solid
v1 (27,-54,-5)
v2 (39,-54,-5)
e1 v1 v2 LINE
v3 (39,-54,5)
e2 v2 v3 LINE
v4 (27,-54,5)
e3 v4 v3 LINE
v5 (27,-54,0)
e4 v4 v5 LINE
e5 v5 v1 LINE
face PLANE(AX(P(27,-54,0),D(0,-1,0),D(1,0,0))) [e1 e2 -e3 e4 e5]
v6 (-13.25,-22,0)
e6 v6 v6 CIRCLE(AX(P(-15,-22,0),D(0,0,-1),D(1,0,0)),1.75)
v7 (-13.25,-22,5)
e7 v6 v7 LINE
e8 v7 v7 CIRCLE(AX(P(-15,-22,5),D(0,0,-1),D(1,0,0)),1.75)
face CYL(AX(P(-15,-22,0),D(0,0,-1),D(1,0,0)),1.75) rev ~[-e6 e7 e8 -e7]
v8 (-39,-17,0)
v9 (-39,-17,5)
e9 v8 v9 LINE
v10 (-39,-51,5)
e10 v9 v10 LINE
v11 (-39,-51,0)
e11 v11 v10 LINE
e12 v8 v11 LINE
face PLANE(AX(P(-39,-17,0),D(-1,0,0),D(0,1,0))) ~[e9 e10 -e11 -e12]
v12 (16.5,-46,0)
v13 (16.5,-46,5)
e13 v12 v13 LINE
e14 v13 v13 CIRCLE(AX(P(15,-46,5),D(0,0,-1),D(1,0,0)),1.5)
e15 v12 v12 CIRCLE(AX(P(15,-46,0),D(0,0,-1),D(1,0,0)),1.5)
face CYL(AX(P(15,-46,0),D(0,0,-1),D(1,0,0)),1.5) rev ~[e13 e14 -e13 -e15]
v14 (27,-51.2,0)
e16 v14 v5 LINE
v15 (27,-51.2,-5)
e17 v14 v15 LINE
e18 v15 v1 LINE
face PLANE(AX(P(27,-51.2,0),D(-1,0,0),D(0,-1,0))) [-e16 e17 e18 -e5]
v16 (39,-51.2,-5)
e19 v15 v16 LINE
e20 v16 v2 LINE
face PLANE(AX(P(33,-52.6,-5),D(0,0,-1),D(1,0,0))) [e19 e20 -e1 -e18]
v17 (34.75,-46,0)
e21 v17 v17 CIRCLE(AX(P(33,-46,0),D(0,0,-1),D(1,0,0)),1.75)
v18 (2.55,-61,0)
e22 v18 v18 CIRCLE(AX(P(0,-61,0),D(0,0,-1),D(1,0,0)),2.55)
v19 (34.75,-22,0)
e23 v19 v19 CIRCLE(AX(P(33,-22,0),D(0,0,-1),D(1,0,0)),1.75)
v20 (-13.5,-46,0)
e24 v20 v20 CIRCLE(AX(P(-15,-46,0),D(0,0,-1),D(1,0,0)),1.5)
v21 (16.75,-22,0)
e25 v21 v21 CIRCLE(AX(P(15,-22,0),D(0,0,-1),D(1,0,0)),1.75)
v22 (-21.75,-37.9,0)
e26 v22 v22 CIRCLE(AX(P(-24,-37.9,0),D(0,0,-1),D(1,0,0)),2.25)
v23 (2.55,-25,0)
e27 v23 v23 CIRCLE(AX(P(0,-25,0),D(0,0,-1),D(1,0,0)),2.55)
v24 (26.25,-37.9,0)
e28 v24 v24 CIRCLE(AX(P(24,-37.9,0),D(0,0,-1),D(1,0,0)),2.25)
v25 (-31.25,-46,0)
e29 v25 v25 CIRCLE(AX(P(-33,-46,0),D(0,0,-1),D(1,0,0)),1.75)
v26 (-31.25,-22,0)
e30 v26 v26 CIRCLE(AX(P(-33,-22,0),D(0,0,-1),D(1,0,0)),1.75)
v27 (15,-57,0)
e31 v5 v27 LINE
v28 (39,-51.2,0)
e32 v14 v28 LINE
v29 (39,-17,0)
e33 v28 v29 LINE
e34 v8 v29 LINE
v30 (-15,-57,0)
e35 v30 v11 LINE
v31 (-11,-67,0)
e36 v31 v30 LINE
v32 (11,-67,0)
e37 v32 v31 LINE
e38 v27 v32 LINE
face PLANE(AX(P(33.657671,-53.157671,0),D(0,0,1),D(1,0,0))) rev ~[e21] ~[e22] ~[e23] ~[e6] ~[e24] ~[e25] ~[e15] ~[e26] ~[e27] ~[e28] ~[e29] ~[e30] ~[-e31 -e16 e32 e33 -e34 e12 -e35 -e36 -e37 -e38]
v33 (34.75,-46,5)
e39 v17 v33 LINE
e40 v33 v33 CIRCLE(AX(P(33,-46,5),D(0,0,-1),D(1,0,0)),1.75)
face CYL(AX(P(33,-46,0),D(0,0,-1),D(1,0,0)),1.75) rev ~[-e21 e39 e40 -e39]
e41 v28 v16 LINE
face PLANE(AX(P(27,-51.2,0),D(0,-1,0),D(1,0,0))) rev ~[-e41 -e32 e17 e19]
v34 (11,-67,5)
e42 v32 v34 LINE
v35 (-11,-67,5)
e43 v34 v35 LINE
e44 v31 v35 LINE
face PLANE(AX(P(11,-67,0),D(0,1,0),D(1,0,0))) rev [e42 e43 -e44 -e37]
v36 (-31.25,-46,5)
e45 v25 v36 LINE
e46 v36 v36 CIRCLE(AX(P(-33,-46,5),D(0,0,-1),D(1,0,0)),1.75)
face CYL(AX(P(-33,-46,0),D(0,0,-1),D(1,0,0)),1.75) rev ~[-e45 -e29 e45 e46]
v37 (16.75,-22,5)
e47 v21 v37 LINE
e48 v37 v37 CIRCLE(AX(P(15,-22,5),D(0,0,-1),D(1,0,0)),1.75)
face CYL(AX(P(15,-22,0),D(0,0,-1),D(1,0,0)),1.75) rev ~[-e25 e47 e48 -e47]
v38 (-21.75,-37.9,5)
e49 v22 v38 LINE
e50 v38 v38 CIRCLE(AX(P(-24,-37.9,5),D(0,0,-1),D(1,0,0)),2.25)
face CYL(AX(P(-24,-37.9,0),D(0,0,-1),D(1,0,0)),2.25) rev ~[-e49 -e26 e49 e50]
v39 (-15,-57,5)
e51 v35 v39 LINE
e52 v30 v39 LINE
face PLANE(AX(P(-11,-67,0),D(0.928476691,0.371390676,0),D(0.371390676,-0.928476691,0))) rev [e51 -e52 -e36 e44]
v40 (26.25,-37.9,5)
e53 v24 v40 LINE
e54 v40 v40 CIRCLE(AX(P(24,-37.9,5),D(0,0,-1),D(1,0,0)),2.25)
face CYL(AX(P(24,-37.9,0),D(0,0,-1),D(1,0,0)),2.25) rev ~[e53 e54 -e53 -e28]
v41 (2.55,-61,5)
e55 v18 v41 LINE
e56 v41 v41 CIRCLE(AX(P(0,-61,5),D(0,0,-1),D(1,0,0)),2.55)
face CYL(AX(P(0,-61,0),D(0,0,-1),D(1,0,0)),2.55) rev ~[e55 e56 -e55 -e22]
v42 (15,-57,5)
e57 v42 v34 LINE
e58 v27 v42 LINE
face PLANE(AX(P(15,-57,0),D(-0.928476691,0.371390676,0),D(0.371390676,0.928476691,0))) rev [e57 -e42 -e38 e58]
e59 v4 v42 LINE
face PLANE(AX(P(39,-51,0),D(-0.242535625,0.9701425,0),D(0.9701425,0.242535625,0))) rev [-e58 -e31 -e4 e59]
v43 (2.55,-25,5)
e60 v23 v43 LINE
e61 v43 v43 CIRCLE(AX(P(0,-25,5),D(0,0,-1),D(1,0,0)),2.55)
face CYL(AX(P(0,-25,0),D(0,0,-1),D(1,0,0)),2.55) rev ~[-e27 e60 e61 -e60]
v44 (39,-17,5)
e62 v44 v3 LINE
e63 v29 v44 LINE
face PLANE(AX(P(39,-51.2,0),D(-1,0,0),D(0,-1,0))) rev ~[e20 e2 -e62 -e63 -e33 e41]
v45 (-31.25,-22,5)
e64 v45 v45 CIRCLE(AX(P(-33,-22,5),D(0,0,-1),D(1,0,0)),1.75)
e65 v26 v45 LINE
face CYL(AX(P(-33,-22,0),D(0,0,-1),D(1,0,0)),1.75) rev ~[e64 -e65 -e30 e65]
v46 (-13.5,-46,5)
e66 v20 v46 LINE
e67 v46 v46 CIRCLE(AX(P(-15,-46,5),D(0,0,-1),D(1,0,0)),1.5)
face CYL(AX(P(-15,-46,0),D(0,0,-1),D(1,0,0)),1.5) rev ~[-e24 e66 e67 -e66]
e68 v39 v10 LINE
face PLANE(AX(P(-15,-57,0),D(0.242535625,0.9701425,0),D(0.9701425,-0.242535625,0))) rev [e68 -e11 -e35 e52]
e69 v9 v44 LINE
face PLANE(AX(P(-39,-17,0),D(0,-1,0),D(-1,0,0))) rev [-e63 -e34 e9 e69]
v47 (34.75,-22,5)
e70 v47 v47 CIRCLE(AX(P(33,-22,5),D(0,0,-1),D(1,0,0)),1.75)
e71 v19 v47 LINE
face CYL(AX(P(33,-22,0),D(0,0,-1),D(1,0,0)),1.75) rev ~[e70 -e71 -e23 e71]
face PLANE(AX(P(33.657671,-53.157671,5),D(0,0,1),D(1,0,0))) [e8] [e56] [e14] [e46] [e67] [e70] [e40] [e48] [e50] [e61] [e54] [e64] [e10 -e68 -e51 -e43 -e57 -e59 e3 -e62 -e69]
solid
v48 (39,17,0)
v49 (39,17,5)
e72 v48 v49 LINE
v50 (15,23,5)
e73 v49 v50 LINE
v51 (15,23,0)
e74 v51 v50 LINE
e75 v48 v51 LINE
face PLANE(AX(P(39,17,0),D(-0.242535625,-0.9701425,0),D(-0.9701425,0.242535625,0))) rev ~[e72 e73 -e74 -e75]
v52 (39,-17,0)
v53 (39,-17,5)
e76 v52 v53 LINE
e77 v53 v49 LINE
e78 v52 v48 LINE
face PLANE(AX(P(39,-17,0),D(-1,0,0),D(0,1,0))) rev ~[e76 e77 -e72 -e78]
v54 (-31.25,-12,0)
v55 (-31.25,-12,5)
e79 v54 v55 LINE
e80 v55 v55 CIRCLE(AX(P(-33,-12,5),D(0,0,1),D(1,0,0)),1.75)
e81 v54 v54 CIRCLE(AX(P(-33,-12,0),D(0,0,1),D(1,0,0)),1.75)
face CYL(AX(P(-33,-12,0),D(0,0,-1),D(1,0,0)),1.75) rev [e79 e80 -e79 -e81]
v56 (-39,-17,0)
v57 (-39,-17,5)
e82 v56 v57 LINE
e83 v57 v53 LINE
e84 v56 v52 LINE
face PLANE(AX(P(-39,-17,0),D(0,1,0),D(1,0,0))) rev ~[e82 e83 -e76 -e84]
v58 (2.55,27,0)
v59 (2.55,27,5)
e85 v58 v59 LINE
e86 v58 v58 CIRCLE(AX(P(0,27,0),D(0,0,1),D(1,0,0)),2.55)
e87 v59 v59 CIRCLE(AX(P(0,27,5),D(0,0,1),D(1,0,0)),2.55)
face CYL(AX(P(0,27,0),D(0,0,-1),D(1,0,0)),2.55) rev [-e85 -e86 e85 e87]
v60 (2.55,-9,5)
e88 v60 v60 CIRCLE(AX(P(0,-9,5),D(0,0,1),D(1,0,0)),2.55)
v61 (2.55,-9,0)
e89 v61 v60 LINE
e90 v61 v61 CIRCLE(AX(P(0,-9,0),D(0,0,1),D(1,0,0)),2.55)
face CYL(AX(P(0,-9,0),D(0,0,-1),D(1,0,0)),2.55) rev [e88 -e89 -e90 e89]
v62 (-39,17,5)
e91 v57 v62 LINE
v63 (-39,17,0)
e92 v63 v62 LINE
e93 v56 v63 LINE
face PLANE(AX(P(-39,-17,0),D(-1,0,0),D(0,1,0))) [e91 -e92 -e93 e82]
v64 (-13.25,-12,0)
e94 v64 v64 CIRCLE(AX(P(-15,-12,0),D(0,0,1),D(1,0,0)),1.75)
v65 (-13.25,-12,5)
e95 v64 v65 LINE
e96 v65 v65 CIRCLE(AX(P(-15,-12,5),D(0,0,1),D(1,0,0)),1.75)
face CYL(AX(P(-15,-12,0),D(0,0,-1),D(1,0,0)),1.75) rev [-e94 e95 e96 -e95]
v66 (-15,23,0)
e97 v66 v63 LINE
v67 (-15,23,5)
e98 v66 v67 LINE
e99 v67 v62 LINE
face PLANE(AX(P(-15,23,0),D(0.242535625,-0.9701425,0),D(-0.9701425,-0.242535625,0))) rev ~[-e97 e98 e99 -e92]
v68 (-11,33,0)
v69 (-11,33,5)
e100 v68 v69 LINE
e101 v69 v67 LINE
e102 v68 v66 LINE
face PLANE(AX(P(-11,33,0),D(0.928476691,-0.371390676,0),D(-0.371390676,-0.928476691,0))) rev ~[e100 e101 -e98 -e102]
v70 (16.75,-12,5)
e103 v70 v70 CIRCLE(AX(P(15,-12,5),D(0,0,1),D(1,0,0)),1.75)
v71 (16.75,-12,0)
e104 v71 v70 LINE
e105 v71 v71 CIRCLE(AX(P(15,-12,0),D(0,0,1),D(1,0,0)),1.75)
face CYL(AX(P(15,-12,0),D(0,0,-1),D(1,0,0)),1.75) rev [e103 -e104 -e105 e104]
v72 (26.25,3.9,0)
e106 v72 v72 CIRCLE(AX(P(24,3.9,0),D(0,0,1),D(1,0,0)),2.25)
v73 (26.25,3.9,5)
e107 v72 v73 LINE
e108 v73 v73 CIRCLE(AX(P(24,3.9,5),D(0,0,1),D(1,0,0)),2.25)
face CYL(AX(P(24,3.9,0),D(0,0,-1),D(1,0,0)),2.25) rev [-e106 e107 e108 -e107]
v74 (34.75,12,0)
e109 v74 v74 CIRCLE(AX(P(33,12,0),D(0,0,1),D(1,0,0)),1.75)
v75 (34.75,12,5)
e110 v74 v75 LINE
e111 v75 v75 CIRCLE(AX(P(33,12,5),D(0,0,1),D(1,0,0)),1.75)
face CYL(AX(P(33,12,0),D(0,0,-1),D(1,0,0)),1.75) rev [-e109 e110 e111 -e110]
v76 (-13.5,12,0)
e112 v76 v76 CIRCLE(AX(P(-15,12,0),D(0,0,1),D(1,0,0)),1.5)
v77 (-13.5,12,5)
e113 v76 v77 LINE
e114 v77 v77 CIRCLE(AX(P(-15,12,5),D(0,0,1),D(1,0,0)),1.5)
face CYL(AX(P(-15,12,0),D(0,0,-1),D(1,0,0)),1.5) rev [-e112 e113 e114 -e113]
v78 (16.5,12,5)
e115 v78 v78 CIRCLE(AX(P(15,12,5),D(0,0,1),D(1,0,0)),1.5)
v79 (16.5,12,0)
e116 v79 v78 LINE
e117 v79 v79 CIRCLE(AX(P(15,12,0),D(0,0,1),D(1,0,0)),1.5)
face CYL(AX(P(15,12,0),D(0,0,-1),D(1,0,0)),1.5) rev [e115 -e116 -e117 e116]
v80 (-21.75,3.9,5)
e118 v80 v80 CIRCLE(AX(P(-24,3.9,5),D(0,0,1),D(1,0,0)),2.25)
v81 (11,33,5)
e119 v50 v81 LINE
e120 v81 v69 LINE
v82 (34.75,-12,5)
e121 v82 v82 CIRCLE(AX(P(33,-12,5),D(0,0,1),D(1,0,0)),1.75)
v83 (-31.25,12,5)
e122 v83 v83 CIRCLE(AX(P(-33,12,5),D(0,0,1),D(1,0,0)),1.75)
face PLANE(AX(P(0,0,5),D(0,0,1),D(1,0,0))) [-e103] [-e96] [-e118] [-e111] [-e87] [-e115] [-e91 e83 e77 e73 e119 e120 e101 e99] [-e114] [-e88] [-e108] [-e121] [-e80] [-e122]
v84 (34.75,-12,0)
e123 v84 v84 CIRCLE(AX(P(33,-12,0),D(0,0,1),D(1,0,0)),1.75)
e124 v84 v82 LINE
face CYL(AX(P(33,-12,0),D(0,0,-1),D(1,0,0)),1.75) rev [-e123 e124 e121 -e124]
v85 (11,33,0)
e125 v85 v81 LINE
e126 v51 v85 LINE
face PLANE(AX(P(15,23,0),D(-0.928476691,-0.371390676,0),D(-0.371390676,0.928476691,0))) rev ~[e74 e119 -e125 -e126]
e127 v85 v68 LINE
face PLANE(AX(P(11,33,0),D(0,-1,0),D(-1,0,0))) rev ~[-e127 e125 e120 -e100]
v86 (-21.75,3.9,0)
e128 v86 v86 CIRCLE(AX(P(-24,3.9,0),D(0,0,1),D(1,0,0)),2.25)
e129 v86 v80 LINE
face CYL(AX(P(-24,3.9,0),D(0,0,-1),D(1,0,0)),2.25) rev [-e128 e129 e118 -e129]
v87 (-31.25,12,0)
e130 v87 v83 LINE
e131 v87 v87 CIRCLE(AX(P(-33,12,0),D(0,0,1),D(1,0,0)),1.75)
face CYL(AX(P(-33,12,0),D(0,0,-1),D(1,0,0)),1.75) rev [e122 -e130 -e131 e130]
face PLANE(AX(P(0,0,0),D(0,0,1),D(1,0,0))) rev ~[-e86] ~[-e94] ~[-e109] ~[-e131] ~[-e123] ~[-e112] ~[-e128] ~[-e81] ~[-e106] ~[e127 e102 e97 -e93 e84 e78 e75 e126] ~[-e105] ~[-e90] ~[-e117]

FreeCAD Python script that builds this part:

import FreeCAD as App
import Part
import Sketcher

V = App.Vector
Q = App.Units.Quantity

doc = App.newDocument("Part")
body = doc.addObject("PartDesign::Body", "Body")

sketch1 = doc.addObject("Sketcher::SketchObject", "Sketch")
body.addObject(sketch1)
sketch1.AttachmentSupport = (doc.XY_Plane, [""])
sketch1.MapMode = "FlatFace"
sketch1.addGeometry([
    Part.LineSegment(V(-39, 17, 0), V(-39, -17, 0)),
    Part.LineSegment(V(-39, -17, 0), V(39, -17, 0)),
    Part.LineSegment(V(39, -17, 0), V(39, 17, 0)),
    Part.LineSegment(V(39, 17, 0), V(15, 23, 0)),
    Part.LineSegment(V(15, 23, 0), V(11, 33, 0)),
    Part.LineSegment(V(11, 33, 0), V(-11, 33, 0)),
    Part.LineSegment(V(-11, 33, 0), V(-15, 23, 0)),
    Part.LineSegment(V(-15, 23, 0), V(-39, 17, 0)),
    Part.Circle(V(-33, -12, 0), V(0, 0, 1), 1.8),
    Part.Circle(V(-15, -12, 0), V(0, 0, 1), 1.8),
    Part.Circle(V(-24, 3.9, 0), V(0, 0, 1), 2.2),
    Part.Circle(V(0, -9, 0), V(0, 0, 1), 2.5),
    Part.Circle(V(15, -12, 0), V(0, 0, 1), 1.8),
    Part.Circle(V(33, -12, 0), V(0, 0, 1), 1.8),
    Part.Circle(V(24, 3.9, 0), V(0, 0, 1), 2.2),
    Part.Circle(V(-33, 12, 0), V(0, 0, 1), 1.8),
    Part.Circle(V(-15, 12, 0), V(0, 0, 1), 1.5),
    Part.Circle(V(15, 12, 0), V(0, 0, 1), 1.5),
    Part.Circle(V(33, 12, 0), V(0, 0, 1), 1.8),
    Part.Circle(V(0, 27, 0), V(0, 0, 1), 2.5),
], False)
sketch1.addConstraint([
    Sketcher.Constraint("Coincident", 0, 2, 1, 1),
    Sketcher.Constraint("Coincident", 1, 2, 2, 1),
    Sketcher.Constraint("Coincident", 2, 2, 3, 1),
    Sketcher.Constraint("Coincident", 3, 2, 4, 1),
    Sketcher.Constraint("Coincident", 4, 2, 5, 1),
    Sketcher.Constraint("Coincident", 5, 2, 6, 1),
    Sketcher.Constraint("Coincident", 6, 2, 7, 1),
    Sketcher.Constraint("Coincident", 7, 2, 0, 1),
    Sketcher.Constraint("Vertical", 0),
    Sketcher.Constraint("Horizontal", 1),
    Sketcher.Constraint("Vertical", 2),
    Sketcher.Constraint("Horizontal", 5),
    Sketcher.Constraint("Equal", 8, 9),
    Sketcher.Constraint("Equal", 9, 12),
    Sketcher.Constraint("Equal", 12, 13),
    Sketcher.Constraint("Equal", 10, 14),
    Sketcher.Constraint("Equal", 13, 15),
    Sketcher.Constraint("Equal", 16, 17),
    Sketcher.Constraint("Equal", 15, 18),
    Sketcher.Constraint("Equal", 11, 19),
    Sketcher.Constraint("Symmetric", 13, 3, 15, 3, -1, 1),
    Sketcher.Constraint("Symmetric", 12, 3, 16, 3, -1, 1),
    Sketcher.Constraint("Symmetric", 9, 3, 17, 3, -1, 1),
    Sketcher.Constraint("Symmetric", 8, 3, 18, 3, -1, 1),
    Sketcher.Constraint("Symmetric", 0, 2, 2, 2, -1, 1),
    Sketcher.Constraint("Symmetric", 9, 3, 12, 3, -2),
    Sketcher.Constraint("Symmetric", 8, 3, 13, 3, -2),
    Sketcher.Constraint("Symmetric", 10, 3, 14, 3, -2),
    Sketcher.Constraint("Symmetric", 3, 2, 6, 2, -2),
    Sketcher.Constraint("PointOnObject", 11, 3, -2),
    Sketcher.Constraint("PointOnObject", 19, 3, -2),
    Sketcher.Constraint("Horizontal", 8, 3, 9, 3),
    Sketcher.Constraint("Horizontal", 2, 2, 7, 2),
    Sketcher.Constraint("Vertical", 17, 3, 3, 2),
    Sketcher.Constraint("Equal", 4, 6),
    Sketcher.Constraint("Diameter", 16, Q("3 mm")),
    Sketcher.Constraint("Diameter", 8, Q("3.5 mm")),
    Sketcher.Constraint("Diameter", 10, Q("4.5 mm")),
    Sketcher.Constraint("Diameter", 11, Q("5.1 mm")),
    Sketcher.Constraint("DistanceX", 1, 1, 1, 2, Q("78 mm")),
    Sketcher.Constraint("DistanceX", 5, 2, 5, 1, Q("22 mm")),
    Sketcher.Constraint("DistanceY", 0, 2, 0, 1, Q("34 mm")),
    Sketcher.Constraint("DistanceX", 8, 3, -1, 1, Q("33 mm")),
    Sketcher.Constraint("DistanceY", 8, 3, -1, 1, Q("12 mm")),
    Sketcher.Constraint("DistanceX", 9, 3, -1, 1, Q("15 mm")),
    Sketcher.Constraint("DistanceX", 10, 3, -1, 1, Q("24 mm")),
    Sketcher.Constraint("DistanceY", 11, 3, -1, 1, Q("9 mm")),
    Sketcher.Constraint("DistanceY", -1, 1, 19, 3, Q("27 mm")),
    Sketcher.Constraint("DistanceY", -1, 1, 3, 2, Q("23 mm")),
    Sketcher.Constraint("DistanceY", -1, 1, 4, 2, Q("33 mm")),
    Sketcher.Constraint("DistanceY", -1, 1, 10, 3, Q("3.9 mm")),
])
pad1 = doc.addObject("PartDesign::Pad", "Pad")
body.addObject(pad1)
pad1.Profile = sketch1
pad1.Length = 5
body2 = doc.addObject("PartDesign::Body", "Body001")
doc.recompute()

mirroring = doc.addObject("Part::Mirroring", "Mirroring")
mirroring.Source = body
mirroring.Base = V(0, -17, 2.5)
mirroring.Normal = V(0, -1, 0)
body2.BaseFeature = mirroring
doc.recompute()

sketch2 = doc.addObject("Sketcher::SketchObject", "Sketch001")
body2.addObject(sketch2)
sketch2.AttachmentSupport = (doc.getObject("XY_Plane001"), [""])
sketch2.MapMode = "FlatFace"
sketch2.AttachmentOffset = App.Placement(V(0, 0, 5), App.Rotation())
sketch2.addGeometry([
    Part.LineSegment(V(39, -51, 0), V(27, -54, 0)),
    Part.LineSegment(V(27, -54, 0), V(39, -54, 0)),
    Part.LineSegment(V(39, -54, 0), V(39, -51, 0)),
], False)
sketch2.addConstraint([
    Sketcher.Constraint("Coincident", 0, 2, 1, 1),
    Sketcher.Constraint("Coincident", 1, 2, 2, 1),
    Sketcher.Constraint("Coincident", 2, 2, 0, 1),
    Sketcher.Constraint("Horizontal", 1),
    Sketcher.Constraint("Vertical", 2),
    Sketcher.Constraint("DistanceX", 1, 1, 1, 2, Q("12 mm")),
    Sketcher.Constraint("DistanceY", 2, 1, 2, 2, Q("3 mm")),
    Sketcher.Constraint("DistanceX", -1, 1, 0, 2, Q("27 mm")),
    Sketcher.Constraint("DistanceY", 0, 2, -1, 1, Q("54 mm")),
])
pad2 = doc.addObject("PartDesign::Pad", "Pad001")
body2.addObject(pad2)
pad2.Profile = sketch2
pad2.Length = 5
pad2.Reversed = True

sketch3 = doc.addObject("Sketcher::SketchObject", "Sketch002")
body2.addObject(sketch3)
sketch3.AttachmentSupport = (doc.getObject("XY_Plane001"), [""])
sketch3.MapMode = "FlatFace"
sketch3.addGeometry([
    Part.LineSegment(V(27, -54, 0), V(27, -51.2, 0)),
    Part.LineSegment(V(27, -51.2, 0), V(39, -51.2, 0)),
    Part.LineSegment(V(39, -51.2, 0), V(39, -54, 0)),
    Part.LineSegment(V(39, -54, 0), V(27, -54, 0)),
], False)
sketch3.addConstraint([
    Sketcher.Constraint("Coincident", 0, 2, 1, 1),
    Sketcher.Constraint("Coincident", 1, 2, 2, 1),
    Sketcher.Constraint("Coincident", 2, 2, 3, 1),
    Sketcher.Constraint("Coincident", 3, 2, 0, 1),
    Sketcher.Constraint("Vertical", 0),
    Sketcher.Constraint("Horizontal", 1),
    Sketcher.Constraint("Vertical", 2),
    Sketcher.Constraint("Horizontal", 3),
    Sketcher.Constraint("DistanceX", 1, 1, 1, 2, Q("12 mm")),
    Sketcher.Constraint("DistanceY", 0, 1, 0, 2, Q("2.8 mm")),
    Sketcher.Constraint("DistanceX", -1, 1, 0, 2, Q("27 mm")),
    Sketcher.Constraint("DistanceY", 2, 2, -1, 1, Q("54 mm")),
])
pad3 = doc.addObject("PartDesign::Pad", "Pad002")
body2.addObject(pad3)
pad3.Profile = sketch3
pad3.Length = 5
pad3.Reversed = True
mirroring.Visibility = False

doc.recompute()
